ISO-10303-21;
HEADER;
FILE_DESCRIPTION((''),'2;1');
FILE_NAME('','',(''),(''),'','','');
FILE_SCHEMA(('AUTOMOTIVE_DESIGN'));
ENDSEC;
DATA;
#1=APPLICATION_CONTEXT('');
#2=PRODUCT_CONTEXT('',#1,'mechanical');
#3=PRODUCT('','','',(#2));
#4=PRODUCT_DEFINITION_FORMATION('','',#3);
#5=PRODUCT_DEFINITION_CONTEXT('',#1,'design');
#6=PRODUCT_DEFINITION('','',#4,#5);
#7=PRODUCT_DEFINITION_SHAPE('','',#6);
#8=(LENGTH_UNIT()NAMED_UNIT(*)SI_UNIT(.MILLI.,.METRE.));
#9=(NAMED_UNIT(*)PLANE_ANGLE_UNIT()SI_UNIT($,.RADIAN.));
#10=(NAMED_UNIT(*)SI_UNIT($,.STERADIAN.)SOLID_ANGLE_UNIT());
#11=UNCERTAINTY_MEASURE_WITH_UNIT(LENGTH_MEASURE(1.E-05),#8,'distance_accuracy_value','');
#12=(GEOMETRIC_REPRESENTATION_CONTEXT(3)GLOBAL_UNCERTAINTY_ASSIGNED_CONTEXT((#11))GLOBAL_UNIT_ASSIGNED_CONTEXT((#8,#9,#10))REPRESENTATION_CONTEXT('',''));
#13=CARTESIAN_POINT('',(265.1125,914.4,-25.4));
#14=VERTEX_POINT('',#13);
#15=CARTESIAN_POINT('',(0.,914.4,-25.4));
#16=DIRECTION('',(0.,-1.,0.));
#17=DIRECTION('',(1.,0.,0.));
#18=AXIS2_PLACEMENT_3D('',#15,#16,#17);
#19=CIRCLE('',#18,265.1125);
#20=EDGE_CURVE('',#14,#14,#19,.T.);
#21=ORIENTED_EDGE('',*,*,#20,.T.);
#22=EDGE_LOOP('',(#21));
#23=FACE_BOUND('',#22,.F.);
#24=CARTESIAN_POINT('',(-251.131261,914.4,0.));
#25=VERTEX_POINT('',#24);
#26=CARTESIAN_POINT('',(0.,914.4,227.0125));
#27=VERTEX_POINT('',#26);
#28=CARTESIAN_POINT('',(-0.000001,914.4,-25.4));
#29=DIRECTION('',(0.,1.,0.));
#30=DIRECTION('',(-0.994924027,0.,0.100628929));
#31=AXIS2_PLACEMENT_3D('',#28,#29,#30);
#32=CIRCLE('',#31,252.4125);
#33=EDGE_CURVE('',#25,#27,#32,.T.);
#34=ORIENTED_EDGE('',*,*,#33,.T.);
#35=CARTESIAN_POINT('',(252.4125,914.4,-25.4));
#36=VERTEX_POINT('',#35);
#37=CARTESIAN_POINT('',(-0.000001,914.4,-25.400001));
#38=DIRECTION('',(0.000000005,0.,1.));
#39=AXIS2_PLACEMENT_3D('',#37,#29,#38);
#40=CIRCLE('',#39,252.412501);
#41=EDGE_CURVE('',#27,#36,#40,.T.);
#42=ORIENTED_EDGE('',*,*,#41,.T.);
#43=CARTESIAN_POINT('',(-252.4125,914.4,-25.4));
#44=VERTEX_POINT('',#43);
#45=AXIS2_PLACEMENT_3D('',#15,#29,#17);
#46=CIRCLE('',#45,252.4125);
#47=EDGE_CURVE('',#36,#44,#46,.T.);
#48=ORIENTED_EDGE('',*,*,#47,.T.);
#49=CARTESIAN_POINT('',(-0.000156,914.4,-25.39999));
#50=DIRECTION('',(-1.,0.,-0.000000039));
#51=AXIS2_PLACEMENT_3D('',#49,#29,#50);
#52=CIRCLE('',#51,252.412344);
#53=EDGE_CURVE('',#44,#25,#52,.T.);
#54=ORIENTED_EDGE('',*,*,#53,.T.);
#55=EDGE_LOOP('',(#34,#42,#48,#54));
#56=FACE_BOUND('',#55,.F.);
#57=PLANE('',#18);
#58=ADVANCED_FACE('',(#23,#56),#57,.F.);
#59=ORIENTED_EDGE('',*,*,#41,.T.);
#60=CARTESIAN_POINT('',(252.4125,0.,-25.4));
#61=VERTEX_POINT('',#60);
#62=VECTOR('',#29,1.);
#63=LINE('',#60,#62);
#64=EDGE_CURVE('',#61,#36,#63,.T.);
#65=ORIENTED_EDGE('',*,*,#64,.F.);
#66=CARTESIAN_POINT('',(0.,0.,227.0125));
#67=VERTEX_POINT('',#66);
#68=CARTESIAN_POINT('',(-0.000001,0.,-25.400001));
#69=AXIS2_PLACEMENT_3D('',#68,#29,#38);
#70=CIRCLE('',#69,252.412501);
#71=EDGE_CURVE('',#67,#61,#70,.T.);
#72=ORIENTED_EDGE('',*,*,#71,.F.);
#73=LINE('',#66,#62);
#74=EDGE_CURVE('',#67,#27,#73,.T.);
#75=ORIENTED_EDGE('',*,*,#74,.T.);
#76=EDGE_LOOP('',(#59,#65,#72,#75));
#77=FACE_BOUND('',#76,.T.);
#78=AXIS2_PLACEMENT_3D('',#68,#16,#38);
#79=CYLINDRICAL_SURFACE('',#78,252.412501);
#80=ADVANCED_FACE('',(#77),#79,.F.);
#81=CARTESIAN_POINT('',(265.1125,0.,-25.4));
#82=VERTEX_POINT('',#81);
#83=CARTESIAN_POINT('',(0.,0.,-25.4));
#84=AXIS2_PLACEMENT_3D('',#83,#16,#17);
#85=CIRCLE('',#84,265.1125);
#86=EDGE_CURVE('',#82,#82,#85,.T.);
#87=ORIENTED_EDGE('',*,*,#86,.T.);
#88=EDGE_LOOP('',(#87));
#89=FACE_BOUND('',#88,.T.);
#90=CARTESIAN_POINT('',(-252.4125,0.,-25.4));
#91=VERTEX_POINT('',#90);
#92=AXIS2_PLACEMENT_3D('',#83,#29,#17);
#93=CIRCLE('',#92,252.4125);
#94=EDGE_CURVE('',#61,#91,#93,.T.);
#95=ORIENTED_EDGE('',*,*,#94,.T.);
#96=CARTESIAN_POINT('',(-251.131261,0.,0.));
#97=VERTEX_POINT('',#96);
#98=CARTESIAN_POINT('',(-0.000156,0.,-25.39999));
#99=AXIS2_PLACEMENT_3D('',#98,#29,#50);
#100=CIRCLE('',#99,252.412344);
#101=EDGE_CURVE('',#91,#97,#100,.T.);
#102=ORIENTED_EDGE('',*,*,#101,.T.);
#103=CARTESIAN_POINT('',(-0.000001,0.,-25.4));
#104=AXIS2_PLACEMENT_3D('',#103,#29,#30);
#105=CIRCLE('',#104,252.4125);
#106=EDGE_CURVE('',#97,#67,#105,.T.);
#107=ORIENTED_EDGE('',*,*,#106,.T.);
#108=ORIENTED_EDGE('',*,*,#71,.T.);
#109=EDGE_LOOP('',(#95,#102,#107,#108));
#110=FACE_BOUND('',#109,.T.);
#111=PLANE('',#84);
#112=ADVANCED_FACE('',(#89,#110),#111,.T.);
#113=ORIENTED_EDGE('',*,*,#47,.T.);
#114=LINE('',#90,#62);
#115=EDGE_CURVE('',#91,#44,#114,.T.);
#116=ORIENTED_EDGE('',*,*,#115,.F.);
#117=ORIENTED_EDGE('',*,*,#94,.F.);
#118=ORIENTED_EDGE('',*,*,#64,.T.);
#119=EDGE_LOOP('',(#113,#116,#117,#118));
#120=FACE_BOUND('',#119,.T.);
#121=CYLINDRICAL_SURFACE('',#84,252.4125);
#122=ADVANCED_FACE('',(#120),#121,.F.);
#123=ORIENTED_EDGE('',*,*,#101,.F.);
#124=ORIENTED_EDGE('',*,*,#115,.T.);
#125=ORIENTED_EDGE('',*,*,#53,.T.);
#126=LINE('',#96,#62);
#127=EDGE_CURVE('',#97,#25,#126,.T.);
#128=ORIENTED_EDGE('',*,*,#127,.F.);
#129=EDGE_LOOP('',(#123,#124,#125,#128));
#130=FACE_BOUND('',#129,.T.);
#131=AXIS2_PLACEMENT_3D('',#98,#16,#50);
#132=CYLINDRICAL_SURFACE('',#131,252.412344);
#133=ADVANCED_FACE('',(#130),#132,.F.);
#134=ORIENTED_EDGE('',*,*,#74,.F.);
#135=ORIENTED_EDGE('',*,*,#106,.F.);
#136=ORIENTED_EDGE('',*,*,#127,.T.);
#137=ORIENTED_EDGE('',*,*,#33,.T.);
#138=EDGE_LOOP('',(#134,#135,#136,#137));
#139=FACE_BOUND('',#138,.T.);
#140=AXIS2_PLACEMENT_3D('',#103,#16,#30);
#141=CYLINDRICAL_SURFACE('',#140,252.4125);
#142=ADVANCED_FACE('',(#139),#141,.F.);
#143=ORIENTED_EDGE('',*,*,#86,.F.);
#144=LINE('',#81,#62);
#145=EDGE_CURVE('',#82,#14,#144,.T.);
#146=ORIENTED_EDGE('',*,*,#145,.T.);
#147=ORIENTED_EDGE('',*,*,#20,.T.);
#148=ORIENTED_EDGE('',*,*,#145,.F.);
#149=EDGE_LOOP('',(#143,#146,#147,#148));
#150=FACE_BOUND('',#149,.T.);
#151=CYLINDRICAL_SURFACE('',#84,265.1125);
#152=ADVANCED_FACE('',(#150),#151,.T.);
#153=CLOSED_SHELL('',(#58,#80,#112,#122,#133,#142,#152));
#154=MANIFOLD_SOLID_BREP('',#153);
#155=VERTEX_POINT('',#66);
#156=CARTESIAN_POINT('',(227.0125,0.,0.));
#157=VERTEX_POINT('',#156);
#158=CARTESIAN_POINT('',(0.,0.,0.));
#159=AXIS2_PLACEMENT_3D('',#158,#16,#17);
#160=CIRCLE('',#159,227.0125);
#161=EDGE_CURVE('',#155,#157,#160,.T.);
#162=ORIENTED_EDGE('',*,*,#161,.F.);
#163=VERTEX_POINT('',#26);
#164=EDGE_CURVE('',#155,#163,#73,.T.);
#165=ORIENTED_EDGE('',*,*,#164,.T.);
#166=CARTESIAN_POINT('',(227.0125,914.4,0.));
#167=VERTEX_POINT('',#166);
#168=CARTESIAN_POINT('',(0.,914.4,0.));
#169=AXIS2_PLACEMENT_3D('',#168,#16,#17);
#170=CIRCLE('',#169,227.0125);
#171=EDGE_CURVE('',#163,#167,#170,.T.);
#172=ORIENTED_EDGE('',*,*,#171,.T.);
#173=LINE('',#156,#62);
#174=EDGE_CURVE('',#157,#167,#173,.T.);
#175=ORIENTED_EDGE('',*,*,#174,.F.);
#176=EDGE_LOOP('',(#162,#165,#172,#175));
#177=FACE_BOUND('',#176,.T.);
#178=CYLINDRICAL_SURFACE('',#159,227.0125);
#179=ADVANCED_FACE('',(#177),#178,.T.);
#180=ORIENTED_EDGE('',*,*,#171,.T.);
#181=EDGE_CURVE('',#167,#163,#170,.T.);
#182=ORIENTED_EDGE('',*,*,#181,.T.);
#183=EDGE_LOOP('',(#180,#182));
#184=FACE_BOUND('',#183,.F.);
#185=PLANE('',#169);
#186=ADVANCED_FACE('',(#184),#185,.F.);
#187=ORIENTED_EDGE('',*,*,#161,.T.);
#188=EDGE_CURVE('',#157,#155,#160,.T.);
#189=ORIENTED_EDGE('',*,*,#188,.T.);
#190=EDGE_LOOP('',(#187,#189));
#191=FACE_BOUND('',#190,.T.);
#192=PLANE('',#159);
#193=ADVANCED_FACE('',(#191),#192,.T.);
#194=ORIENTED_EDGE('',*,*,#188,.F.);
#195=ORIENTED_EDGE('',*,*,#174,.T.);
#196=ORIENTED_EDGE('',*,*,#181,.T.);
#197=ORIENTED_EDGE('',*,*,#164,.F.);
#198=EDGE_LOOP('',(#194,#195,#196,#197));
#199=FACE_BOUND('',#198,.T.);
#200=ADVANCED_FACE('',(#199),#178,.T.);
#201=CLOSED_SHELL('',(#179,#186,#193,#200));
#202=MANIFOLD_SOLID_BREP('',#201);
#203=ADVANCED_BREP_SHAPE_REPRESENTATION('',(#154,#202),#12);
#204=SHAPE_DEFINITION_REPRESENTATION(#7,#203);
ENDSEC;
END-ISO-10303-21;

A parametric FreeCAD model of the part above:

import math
import FreeCAD as App
import Part
import Sketcher
Q = App.Units.Quantity

doc = App.newDocument("Part")
body = doc.addObject("PartDesign::Body", "Body")
body.AllowCompound = True

# Sketch on XZ plane
sketch1 = doc.addObject("Sketcher::SketchObject", "Sketch")
body.addObject(sketch1)
sketch1.AttachmentSupport = (doc.XZ_Plane, [""])
sketch1.MapMode = "FlatFace"
sketch1.addGeometry(Part.Circle(App.Vector(0, 0, 0), App.Vector(0, 0, 1), 227.0125), False)
sketch1.addConstraint([
    Sketcher.Constraint("Coincident", 0, 3, -1, 1),
    Sketcher.Constraint("Diameter", 0, Q("17.875 in")),
])
pad1 = doc.addObject("PartDesign::Pad", "Pad")
body.addObject(pad1)
pad1.Profile = sketch1
pad1.Length = Q("36 in")
pad1.Reversed = True

# Sketch on XZ plane
sketch2 = doc.addObject("Sketcher::SketchObject", "Sketch001")
body.addObject(sketch2)
sketch2.AttachmentSupport = (doc.XZ_Plane, [""])
sketch2.MapMode = "FlatFace"
sketch2.addGeometry([
    Part.Circle(App.Vector(0, -25.4, 0), App.Vector(0, 0, 1), 265.1125),  # 0
    Part.ArcOfCircle(Part.Circle(App.Vector(-0.000001, -25.4, 0), App.Vector(0, 0, 1), 252.4125), math.radians(90), math.radians(174.224612)),  # 1
    Part.ArcOfCircle(Part.Circle(App.Vector(-0.000001, -25.400001, 0), App.Vector(0, 0, 1), 252.412501), math.radians(0), math.radians(90)),  # 2
    Part.ArcOfCircle(Part.Circle(App.Vector(0, -25.4, 0), App.Vector(0, 0, 1), 252.4125), math.radians(180), math.radians(360)),  # 3
    Part.ArcOfCircle(Part.Circle(App.Vector(-0.000156, -25.39999, 0), App.Vector(0, 0, 1), 252.412344), math.radians(174.22461), math.radians(180.000002)),  # 4
], False)
sketch2.addConstraint([
    Sketcher.Constraint("Coincident", 1, 1, 2, 2),
    Sketcher.Constraint("Coincident", 2, 1, 3, 2),
    Sketcher.Constraint("Coincident", 3, 1, 4, 2),
    Sketcher.Constraint("Coincident", 4, 1, 1, 2),
    Sketcher.Constraint("Coincident", 1, 3, 0, 3),
    Sketcher.Constraint("Coincident", 2, 3, 0, 3),
    Sketcher.Constraint("Coincident", 3, 3, 0, 3),
    Sketcher.Constraint("PointOnObject", 0, 3, -2),
    Sketcher.Constraint("PointOnObject", 1, 1, -2),
    Sketcher.Constraint("PointOnObject", 4, 1, -1),
    Sketcher.Constraint("Diameter", 0, Q("20.875 in")),
    Sketcher.Constraint("DistanceY", 0, 3, -1, 1, Q("1 in")),
    Sketcher.Constraint("DistanceY", 2, 1, -1, 1, Q("1 in")),
    Sketcher.Constraint("DistanceY", 3, 1, -1, 1, Q("1 in")),
    Sketcher.Constraint("Radius", 1, Q("9.9375 in")),
    Sketcher.Constraint("Radius", 4, 252.412344),
])
pad2 = doc.addObject("PartDesign::Pad", "Pad001")
body.addObject(pad2)
pad2.Profile = sketch2
pad2.Length = Q("36 in")
pad2.Reversed = True

doc.recompute()
